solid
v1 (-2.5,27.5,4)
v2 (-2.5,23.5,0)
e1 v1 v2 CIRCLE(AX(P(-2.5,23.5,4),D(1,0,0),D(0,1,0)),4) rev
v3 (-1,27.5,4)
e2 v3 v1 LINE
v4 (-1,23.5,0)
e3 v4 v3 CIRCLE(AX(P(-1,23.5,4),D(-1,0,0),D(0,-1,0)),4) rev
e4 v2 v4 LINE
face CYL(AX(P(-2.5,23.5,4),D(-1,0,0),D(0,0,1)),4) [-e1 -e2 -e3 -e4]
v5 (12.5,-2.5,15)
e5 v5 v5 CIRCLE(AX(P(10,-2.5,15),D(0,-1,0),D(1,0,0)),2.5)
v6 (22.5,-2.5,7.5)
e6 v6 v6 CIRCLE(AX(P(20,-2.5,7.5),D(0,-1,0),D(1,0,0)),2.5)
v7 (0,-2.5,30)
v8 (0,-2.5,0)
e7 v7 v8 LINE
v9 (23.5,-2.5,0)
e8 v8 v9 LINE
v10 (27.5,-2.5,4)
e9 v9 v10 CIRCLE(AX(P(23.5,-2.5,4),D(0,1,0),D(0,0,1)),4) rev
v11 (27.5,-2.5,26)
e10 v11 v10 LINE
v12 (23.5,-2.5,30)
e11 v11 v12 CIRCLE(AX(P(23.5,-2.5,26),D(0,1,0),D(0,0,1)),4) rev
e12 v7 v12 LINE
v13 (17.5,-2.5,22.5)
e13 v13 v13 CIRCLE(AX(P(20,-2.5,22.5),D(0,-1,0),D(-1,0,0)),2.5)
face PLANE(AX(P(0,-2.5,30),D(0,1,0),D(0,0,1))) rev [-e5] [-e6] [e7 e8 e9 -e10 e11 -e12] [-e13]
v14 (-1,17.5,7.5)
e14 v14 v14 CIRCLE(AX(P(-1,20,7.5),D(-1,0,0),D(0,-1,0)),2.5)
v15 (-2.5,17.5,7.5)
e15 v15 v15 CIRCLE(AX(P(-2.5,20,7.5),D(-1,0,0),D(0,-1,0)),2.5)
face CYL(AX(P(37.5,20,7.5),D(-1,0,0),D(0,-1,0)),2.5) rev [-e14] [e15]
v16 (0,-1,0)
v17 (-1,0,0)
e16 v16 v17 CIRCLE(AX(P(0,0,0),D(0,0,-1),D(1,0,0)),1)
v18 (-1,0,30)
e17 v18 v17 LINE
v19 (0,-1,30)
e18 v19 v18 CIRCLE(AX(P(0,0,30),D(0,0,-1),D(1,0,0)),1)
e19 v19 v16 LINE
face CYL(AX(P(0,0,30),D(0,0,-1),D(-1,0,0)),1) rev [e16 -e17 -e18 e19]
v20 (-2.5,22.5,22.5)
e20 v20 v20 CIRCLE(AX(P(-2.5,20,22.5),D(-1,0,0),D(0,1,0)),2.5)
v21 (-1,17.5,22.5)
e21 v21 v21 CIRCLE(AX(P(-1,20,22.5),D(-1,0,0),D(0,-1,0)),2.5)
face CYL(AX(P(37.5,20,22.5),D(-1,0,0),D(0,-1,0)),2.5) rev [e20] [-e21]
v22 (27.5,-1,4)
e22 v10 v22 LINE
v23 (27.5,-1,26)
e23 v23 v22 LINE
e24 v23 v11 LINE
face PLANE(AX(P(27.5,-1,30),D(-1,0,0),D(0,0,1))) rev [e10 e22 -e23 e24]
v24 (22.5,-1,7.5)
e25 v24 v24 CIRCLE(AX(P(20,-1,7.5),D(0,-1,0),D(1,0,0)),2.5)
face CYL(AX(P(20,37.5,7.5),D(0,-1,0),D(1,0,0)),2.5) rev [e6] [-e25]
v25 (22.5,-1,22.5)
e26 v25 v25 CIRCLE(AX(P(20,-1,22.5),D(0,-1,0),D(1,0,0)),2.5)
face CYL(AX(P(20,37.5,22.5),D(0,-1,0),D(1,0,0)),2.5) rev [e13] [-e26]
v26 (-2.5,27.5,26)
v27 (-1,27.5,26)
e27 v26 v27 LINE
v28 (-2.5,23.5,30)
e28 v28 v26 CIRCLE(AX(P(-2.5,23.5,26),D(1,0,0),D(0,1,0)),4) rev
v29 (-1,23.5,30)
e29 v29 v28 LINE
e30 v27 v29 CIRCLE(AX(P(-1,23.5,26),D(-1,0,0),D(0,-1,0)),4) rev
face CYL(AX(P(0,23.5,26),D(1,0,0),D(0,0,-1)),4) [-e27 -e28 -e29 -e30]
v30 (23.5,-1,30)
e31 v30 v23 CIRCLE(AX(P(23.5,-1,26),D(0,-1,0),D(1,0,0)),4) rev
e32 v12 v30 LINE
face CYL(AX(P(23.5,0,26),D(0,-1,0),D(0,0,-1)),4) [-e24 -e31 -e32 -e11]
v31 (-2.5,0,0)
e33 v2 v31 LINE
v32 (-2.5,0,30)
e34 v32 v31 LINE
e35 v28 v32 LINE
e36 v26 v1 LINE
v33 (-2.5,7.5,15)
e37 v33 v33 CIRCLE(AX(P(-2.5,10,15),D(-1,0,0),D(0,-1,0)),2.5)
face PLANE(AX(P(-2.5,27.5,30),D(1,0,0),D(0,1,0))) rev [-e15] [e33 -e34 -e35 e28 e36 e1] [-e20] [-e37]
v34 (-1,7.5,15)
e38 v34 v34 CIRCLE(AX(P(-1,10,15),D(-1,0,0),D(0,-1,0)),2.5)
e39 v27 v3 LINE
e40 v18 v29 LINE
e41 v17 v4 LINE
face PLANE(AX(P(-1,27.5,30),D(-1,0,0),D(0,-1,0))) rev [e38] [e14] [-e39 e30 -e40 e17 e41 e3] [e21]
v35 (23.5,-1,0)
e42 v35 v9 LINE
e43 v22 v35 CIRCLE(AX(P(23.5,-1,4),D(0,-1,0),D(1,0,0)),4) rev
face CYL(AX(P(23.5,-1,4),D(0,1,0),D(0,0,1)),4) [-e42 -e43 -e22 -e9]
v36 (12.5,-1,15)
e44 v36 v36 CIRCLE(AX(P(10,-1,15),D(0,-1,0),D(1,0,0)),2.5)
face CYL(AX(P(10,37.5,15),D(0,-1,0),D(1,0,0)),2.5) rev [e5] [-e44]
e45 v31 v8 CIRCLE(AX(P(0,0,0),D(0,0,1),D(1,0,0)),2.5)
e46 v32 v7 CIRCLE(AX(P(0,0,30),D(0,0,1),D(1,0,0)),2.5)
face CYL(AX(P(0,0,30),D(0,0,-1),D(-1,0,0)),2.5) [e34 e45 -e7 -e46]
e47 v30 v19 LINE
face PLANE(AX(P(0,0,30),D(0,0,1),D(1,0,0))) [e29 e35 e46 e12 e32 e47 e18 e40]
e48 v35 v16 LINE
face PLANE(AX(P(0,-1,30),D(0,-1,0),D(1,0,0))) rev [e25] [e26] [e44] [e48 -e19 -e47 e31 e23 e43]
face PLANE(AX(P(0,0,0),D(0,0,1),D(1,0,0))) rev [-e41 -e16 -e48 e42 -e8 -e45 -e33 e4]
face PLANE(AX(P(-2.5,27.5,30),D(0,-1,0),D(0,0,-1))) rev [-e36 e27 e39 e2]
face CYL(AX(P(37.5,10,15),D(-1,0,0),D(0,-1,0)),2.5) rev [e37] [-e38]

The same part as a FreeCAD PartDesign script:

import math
import FreeCAD as App
import Part
import Sketcher

V = App.Vector


def edges_at(feature, points):
    """Names of the edges that pass closest to the given points."""
    edges = feature.Shape.Edges
    near = lambda p: min(range(len(edges)), key=lambda i: edges[i].distToShape(Part.Vertex(*p))[0])
    return sorted({f"Edge{near(p) + 1}" for p in points})

doc = App.newDocument("Part")
params = doc.addObject("Spreadsheet::Sheet", "Params")
for row, (alias, value) in enumerate([
    ("sketch1_radius", "1 mm"),
    ("sketch1_radius2", "2.5 mm"),
    ("sketch1_width", "27.5 mm"),
    ("pad1_length", "30 mm"),
    ("sketch2_diameter", "5 mm"),
    ("pocket1_length", "40 mm"),
    ("sketch3_diameter", "5 mm"),
    ("pocket2_length", "40 mm"),
    ("fillet_radius", "4 mm"),
], start=1):
    params.set(f"A{row}", alias)
    params.set(f"B{row}", "=" + value)
    params.setAlias(f"B{row}", alias)

body = doc.addObject("PartDesign::Body", "Body")

sketch1 = doc.addObject("Sketcher::SketchObject", "Sketch")
body.addObject(sketch1)
sketch1.AttachmentSupport = (doc.XY_Plane, [""])
sketch1.MapMode = "FlatFace"
sketch1.addGeometry([
    Part.LineSegment(V(-2.5, 27.5, 0), V(-2.5, 0, 0)),
    Part.ArcOfCircle(Part.Circle(V(0, 0, 0), V(0, 0, 1), 2.5), math.radians(180), math.radians(270)),
    Part.LineSegment(V(0, -2.5, 0), V(27.5, -2.5, 0)),
    Part.LineSegment(V(27.5, -2.5, 0), V(27.5, -1, 0)),
    Part.LineSegment(V(27.5, -1, 0), V(0, -1, 0)),
    Part.ArcOfCircle(Part.Circle(V(0, 0, 0), V(0, 0, 1), 1), math.radians(-180), math.radians(-90)),
    Part.LineSegment(V(-1, 0, 0), V(-1, 27.5, 0)),
    Part.LineSegment(V(-1, 27.5, 0), V(-2.5, 27.5, 0)),
], False)
sketch1.addConstraint([
    Sketcher.Constraint("Tangent", 0, 2, 1, 1),
    Sketcher.Constraint("Tangent", 1, 2, 2, 1),
    Sketcher.Constraint("Coincident", 2, 2, 3, 1),
    Sketcher.Constraint("Coincident", 3, 2, 4, 1),
    Sketcher.Constraint("Tangent", 4, 2, 5, 2),
    Sketcher.Constraint("Tangent", 5, 1, 6, 1),
    Sketcher.Constraint("Coincident", 6, 2, 7, 1),
    Sketcher.Constraint("Coincident", 7, 2, 0, 1),
    Sketcher.Constraint("Vertical", 0),
    Sketcher.Constraint("Horizontal", 2),
    Sketcher.Constraint("Vertical", 3),
    Sketcher.Constraint("Horizontal", 4),
    Sketcher.Constraint("Vertical", 6),
    Sketcher.Constraint("Horizontal", 7),
    Sketcher.Constraint("Coincident", 1, 3, -1, 1),
    Sketcher.Constraint("Coincident", 5, 3, -1, 1),
    Sketcher.Constraint("Equal", 4, 0),
    Sketcher.Constraint("Radius", 5, 1.0),
    Sketcher.Constraint("Radius", 1, 2.5),
    Sketcher.Constraint("DistanceX", 2, 1, 2, 2, 27.5),
])
sketch1.setExpression("Constraints[17]", "Params.sketch1_radius")
sketch1.setExpression("Constraints[18]", "Params.sketch1_radius2")
sketch1.setExpression("Constraints[19]", "Params.sketch1_width")
pad1 = doc.addObject("PartDesign::Pad", "Pad")
body.addObject(pad1)
pad1.Profile = sketch1
pad1.setExpression("Length", "Params.pad1_length")

sketch2 = doc.addObject("Sketcher::SketchObject", "Sketch001")
body.addObject(sketch2)
sketch2.AttachmentSupport = (doc.YZ_Plane, [""])
sketch2.MapMode = "FlatFace"
sketch2.AttachmentOffset = App.Placement(V(0, 0, -2.5), App.Rotation())
sketch2.addGeometry([
    Part.Circle(V(20, 7.5, 0), V(0, 0, 1), 2.5),
    Part.Circle(V(20, 22.5, 0), V(0, 0, 1), 2.5),
    Part.Circle(V(10, 15, 0), V(0, 0, 1), 2.5),
], False)
sketch2.addConstraint([
    Sketcher.Constraint("Equal", 0, 1),
    Sketcher.Constraint("Equal", 1, 2),
    Sketcher.Constraint("Vertical", 0, 3, 1, 3),
    Sketcher.Constraint("Diameter", 0, 5.0),
    Sketcher.Constraint("DistanceX", -1, 1, 0, 3, 20.0),
    Sketcher.Constraint("DistanceX", -1, 1, 2, 3, 10.0),
    Sketcher.Constraint("DistanceY", -1, 1, 2, 3, 15.0),
    Sketcher.Constraint("DistanceY", 0, 3, 1, 3, 15.0),
    Sketcher.Constraint("DistanceY", -1, 1, 0, 3, 7.5),
])
sketch2.setExpression("Constraints[3]", "Params.sketch2_diameter")
pocket1 = doc.addObject("PartDesign::Pocket", "Pocket")
body.addObject(pocket1)
pocket1.Profile = sketch2
pocket1.setExpression("Length", "Params.pocket1_length")
pocket1.Reversed = True

sketch3 = doc.addObject("Sketcher::SketchObject", "Sketch002")
body.addObject(sketch3)
sketch3.AttachmentSupport = (doc.XZ_Plane, [""])
sketch3.MapMode = "FlatFace"
sketch3.AttachmentOffset = App.Placement(V(0, 0, 2.5), App.Rotation())
sketch3.addGeometry([
    Part.Circle(V(20, 7.5, 0), V(0, 0, 1), 2.5),
    Part.Circle(V(20, 22.5, 0), V(0, 0, 1), 2.5),
    Part.Circle(V(10, 15, 0), V(0, 0, 1), 2.5),
], False)
sketch3.addConstraint([
    Sketcher.Constraint("Equal", 0, 1),
    Sketcher.Constraint("Equal", 1, 2),
    Sketcher.Constraint("Vertical", 0, 3, 1, 3),
    Sketcher.Constraint("Diameter", 0, 5.0),
    Sketcher.Constraint("DistanceX", -1, 1, 0, 3, 20.0),
    Sketcher.Constraint("DistanceX", -1, 1, 2, 3, 10.0),
    Sketcher.Constraint("DistanceY", -1, 1, 2, 3, 15.0),
    Sketcher.Constraint("DistanceY", 0, 3, 1, 3, 15.0),
    Sketcher.Constraint("DistanceY", -1, 1, 0, 3, 7.5),
])
sketch3.setExpression("Constraints[3]", "Params.sketch3_diameter")
pocket2 = doc.addObject("PartDesign::Pocket", "Pocket001")
body.addObject(pocket2)
pocket2.Profile = sketch3
pocket2.setExpression("Length", "Params.pocket2_length")
doc.recompute()

fillet = doc.addObject("PartDesign::Fillet", "Fillet")
body.addObject(fillet)
fillet.Base = (pocket2, edges_at(pocket2, [
    (-1.75, 27.5, 0),
    (27.5, -1.75, 30),
    (-1.75, 27.5, 30),
    (27.5, -1.75, 0),
]))
fillet.setExpression("Radius", "Params.fillet_radius")

doc.recompute()
